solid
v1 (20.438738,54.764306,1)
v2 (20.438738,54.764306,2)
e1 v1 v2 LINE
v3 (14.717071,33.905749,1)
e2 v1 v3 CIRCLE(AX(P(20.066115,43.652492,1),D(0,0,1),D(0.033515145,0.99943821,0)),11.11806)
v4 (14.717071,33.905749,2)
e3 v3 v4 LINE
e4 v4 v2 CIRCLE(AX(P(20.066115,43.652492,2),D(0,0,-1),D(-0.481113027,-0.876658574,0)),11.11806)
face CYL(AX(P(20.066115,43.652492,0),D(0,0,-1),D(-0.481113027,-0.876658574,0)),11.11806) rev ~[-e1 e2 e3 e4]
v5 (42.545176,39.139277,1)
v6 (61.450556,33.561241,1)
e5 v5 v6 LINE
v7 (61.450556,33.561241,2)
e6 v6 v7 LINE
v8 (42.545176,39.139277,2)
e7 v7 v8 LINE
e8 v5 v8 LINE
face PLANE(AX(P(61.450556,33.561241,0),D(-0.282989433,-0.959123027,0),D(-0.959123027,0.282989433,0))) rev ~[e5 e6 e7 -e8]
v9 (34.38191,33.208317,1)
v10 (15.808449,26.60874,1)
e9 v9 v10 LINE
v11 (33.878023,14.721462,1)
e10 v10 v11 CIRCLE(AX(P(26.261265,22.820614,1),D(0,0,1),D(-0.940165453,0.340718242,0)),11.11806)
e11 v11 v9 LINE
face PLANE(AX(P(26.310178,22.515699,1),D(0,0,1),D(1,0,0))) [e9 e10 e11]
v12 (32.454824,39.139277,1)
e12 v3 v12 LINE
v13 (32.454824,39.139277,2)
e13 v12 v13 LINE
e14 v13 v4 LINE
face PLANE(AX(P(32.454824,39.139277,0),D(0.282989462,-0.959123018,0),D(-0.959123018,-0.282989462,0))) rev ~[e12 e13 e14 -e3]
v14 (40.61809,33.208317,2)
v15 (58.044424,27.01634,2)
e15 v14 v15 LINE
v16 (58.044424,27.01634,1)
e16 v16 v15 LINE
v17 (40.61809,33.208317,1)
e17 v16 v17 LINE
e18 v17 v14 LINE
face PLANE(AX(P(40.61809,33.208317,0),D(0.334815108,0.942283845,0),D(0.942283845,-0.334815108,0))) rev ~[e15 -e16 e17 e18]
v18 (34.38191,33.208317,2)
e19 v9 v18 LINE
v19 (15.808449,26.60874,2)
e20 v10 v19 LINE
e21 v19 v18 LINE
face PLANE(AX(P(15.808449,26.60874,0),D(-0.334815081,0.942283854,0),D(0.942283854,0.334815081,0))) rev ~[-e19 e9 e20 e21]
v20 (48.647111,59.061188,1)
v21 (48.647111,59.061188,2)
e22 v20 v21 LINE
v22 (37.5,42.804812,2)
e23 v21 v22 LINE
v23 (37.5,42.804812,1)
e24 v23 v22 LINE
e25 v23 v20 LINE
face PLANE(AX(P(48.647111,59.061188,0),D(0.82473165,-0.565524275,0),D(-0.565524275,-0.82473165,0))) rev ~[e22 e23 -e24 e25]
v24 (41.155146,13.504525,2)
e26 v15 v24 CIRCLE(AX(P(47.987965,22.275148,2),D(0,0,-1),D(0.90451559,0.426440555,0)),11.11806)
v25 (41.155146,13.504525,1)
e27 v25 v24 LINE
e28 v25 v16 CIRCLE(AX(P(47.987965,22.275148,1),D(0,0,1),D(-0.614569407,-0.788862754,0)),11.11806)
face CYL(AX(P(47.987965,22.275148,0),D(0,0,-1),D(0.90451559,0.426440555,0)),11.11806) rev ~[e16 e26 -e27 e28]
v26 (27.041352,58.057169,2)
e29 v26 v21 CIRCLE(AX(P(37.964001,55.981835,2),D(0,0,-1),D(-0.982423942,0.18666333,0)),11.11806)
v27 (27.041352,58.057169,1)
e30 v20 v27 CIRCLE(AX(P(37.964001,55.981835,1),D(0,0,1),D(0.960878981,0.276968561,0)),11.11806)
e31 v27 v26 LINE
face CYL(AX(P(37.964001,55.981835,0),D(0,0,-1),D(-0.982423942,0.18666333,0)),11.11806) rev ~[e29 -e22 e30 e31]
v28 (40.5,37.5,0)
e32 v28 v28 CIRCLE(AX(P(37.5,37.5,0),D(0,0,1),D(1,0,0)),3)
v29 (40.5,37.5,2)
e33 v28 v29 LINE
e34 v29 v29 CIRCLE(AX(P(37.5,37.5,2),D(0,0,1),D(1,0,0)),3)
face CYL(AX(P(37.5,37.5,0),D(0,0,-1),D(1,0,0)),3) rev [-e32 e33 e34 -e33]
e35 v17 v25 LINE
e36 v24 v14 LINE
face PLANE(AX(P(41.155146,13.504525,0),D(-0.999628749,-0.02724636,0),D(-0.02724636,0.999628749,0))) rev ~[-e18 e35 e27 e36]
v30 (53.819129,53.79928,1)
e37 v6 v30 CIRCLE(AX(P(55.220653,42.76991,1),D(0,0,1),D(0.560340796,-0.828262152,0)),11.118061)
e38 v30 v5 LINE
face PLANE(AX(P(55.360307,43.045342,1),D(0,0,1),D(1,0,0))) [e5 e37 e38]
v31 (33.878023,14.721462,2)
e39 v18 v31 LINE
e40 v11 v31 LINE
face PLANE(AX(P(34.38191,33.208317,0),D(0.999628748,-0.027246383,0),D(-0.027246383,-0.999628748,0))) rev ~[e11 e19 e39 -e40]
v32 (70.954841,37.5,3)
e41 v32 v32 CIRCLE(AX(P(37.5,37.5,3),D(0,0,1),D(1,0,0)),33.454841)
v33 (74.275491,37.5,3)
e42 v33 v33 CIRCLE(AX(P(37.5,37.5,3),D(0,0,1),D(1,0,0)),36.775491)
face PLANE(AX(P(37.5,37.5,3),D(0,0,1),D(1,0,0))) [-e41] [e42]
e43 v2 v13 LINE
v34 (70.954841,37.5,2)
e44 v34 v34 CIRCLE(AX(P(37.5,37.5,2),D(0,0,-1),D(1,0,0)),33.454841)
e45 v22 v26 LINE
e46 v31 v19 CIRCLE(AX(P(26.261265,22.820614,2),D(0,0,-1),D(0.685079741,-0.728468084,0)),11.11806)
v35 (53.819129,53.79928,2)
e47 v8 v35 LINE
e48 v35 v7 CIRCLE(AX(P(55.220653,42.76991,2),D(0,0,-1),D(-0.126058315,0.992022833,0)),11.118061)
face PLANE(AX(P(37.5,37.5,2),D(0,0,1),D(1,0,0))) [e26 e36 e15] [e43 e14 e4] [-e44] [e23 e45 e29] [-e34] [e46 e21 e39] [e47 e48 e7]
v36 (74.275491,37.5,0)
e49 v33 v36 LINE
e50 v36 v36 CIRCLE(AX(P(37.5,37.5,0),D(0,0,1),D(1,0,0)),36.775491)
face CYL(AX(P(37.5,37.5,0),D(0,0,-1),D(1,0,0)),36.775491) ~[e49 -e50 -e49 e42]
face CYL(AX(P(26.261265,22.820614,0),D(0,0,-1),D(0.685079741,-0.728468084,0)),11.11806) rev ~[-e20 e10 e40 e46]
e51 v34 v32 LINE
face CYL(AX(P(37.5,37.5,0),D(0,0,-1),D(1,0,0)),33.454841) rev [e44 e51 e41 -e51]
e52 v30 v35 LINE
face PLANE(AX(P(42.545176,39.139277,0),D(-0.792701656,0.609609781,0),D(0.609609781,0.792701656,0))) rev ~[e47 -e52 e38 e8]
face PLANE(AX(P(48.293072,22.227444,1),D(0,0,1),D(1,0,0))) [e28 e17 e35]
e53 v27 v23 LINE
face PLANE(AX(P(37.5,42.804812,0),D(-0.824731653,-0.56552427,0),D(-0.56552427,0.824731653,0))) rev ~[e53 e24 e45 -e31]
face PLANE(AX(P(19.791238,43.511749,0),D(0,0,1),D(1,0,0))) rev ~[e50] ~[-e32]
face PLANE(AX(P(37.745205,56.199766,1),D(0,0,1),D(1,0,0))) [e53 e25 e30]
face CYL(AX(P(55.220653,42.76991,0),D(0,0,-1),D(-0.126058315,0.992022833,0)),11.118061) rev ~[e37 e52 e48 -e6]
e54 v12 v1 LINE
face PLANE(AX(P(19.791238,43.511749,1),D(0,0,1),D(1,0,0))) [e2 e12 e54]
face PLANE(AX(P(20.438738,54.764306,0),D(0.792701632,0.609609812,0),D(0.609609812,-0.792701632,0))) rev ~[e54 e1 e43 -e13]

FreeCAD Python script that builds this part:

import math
import FreeCAD as App
import Part
import Sketcher

V = App.Vector
Q = App.Units.Quantity

doc = App.newDocument("Part")
body = doc.addObject("PartDesign::Body", "Body")

sketch1 = body.newObject("Sketcher::SketchObject", "Sketch")
sketch1.AttachmentSupport = (doc.getObject("XY_Plane"), [""])
sketch1.MapMode = "FlatFace"
sketch1.addGeometry([
    Part.Circle(V(37.5, 37.5, 0), V(0, 0, 1), 36.8),
    Part.LineSegment(V(34.4, 33.2, 0), V(33.9, 14.7, 0)),
    Part.ArcOfCircle(Part.Circle(V(26.3, 22.8, 0), V(0, 0, 1), 11.1), math.radians(160), math.radians(313)),
    Part.LineSegment(V(15.8, 26.6, 0), V(34.4, 33.2, 0)),
    Part.Circle(V(37.5, 37.5, 0), V(0, 0, 1), 3),
    Part.ArcOfCircle(Part.Circle(V(48, 22.3, 0), V(0, 0, 1), 11.1), math.radians(-128), math.radians(25)),
    Part.LineSegment(V(41.2, 13.5, 0), V(40.6, 33.2, 0)),
    Part.LineSegment(V(40.6, 33.2, 0), V(58, 27, 0)),
    Part.LineSegment(V(32.5, 39.1, 0), V(14.7, 33.9, 0)),
    Part.ArcOfCircle(Part.Circle(V(20.1, 43.7, 0), V(0, 0, 1), 11.1), math.radians(88), math.radians(241)),
    Part.LineSegment(V(20.4, 54.8, 0), V(32.5, 39.1, 0)),
    Part.ArcOfCircle(Part.Circle(V(55.2, 42.8, 0), V(0, 0, 1), 11.1), math.radians(-56), math.radians(97)),
    Part.LineSegment(V(61.5, 33.6, 0), V(42.5, 39.1, 0)),
    Part.LineSegment(V(42.5, 39.1, 0), V(53.8, 53.8, 0)),
    Part.LineSegment(V(48.6, 59.1, 0), V(37.5, 42.8, 0)),
    Part.LineSegment(V(37.5, 42.8, 0), V(27, 58.1, 0)),
    Part.ArcOfCircle(Part.Circle(V(38, 56, 0), V(0, 0, 1), 11.1), math.radians(16), math.radians(169)),
], False)
sketch1.addConstraint([
    Sketcher.Constraint("Coincident", 1, 2, 2, 2),
    Sketcher.Constraint("Coincident", 2, 1, 3, 1),
    Sketcher.Constraint("Coincident", 3, 2, 1, 1),
    Sketcher.Constraint("Coincident", 5, 1, 6, 1),
    Sketcher.Constraint("Coincident", 6, 2, 7, 1),
    Sketcher.Constraint("Coincident", 7, 2, 5, 2),
    Sketcher.Constraint("Coincident", 8, 2, 9, 2),
    Sketcher.Constraint("Coincident", 9, 1, 10, 1),
    Sketcher.Constraint("Coincident", 10, 2, 8, 1),
    Sketcher.Constraint("Coincident", 11, 1, 12, 1),
    Sketcher.Constraint("Coincident", 12, 2, 13, 1),
    Sketcher.Constraint("Coincident", 13, 2, 11, 2),
    Sketcher.Constraint("Coincident", 14, 2, 15, 1),
    Sketcher.Constraint("Coincident", 15, 2, 16, 2),
    Sketcher.Constraint("Coincident", 16, 1, 14, 1),
    Sketcher.Constraint("Coincident", 4, 3, 0, 3),
    Sketcher.Constraint("Equal", 2, 5),
    Sketcher.Constraint("Equal", 5, 9),
    Sketcher.Constraint("Equal", 9, 11),
    Sketcher.Constraint("Equal", 11, 16),
    Sketcher.Constraint("Horizontal", 3, 2, 6, 2),
    Sketcher.Constraint("Horizontal", 10, 2, 12, 2),
    Sketcher.Constraint("Vertical", 4, 3, 14, 2),
    Sketcher.Constraint("Equal", 3, 6),
    Sketcher.Constraint("Equal", 1, 7),
    Sketcher.Constraint("Equal", 7, 8),
    Sketcher.Constraint("Equal", 6, 10),
    Sketcher.Constraint("Equal", 10, 12),
    Sketcher.Constraint("Equal", 8, 13),
    Sketcher.Constraint("Equal", 12, 14),
    Sketcher.Constraint("Equal", 13, 15),
    Sketcher.Constraint("Diameter", 4, Q("6 mm")),
    Sketcher.Constraint("DistanceX", -1, 1, 0, 3, Q("37.5 mm")),
    Sketcher.Constraint("DistanceY", -1, 1, 0, 3, Q("37.5 mm")),
    Sketcher.Constraint("Radius", 2, Q("11.11806 mm")),
    Sketcher.Constraint("Diameter", 0, Q("73.550982 mm")),
    Sketcher.Constraint("DistanceX", -1, 1, 16, 3, Q("37.964001 mm")),
    Sketcher.Constraint("DistanceX", 2, 3, 5, 3, Q("21.7267 mm")),
    Sketcher.Constraint("DistanceY", 7, 2, 11, 1, Q("6.544901 mm")),
    Sketcher.Constraint("Distance", 1, Q("18.493721 mm")),
    Sketcher.Constraint("Distance", 3, Q("19.71111 mm")),
    Sketcher.Constraint("DistanceY", -1, 1, 5, 3, Q("22.275148 mm")),
    Sketcher.Constraint("DistanceY", -1, 1, 9, 3, Q("43.652492 mm")),
    Sketcher.Constraint("DistanceY", -1, 1, 11, 3, Q("42.76991 mm")),
    Sketcher.Constraint("DistanceX", -1, 1, 2, 1, Q("15.808449 mm")),
    Sketcher.Constraint("DistanceY", -1, 1, 2, 1, Q("26.60874 mm")),
    Sketcher.Constraint("DistanceX", -1, 1, 3, 2, Q("34.38191 mm")),
    Sketcher.Constraint("DistanceX", -1, 1, 6, 2, Q("40.61809 mm")),
    Sketcher.Constraint("DistanceY", -1, 1, 7, 2, Q("27.01634 mm")),
    Sketcher.Constraint("DistanceX", -1, 1, 8, 2, Q("14.717071 mm")),
    Sketcher.Constraint("DistanceY", -1, 1, 8, 2, Q("33.905749 mm")),
    Sketcher.Constraint("DistanceX", -1, 1, 13, 2, Q("53.819129 mm")),
    Sketcher.Constraint("DistanceY", -1, 1, 13, 2, Q("53.79928 mm")),
    Sketcher.Constraint("DistanceY", -1, 1, 14, 2, Q("42.804812 mm")),
    Sketcher.Constraint("DistanceX", -1, 1, 15, 2, Q("27.041352 mm")),
])
pad1 = body.newObject("PartDesign::Pad", "Pad")
pad1.Profile = sketch1
pad1.Length = 2

sketch2 = body.newObject("Sketcher::SketchObject", "Sketch001")
sketch2.AttachmentSupport = (doc.getObject("XY_Plane"), [""])
sketch2.MapMode = "FlatFace"
sketch2.addGeometry([
    Part.Circle(V(38, 38, 0), V(0, 0, 1), 37),
    Part.Circle(V(38, 38, 0), V(0, 0, 1), 33),
], False)
sketch2.addConstraint([
    Sketcher.Constraint("Coincident", 1, 3, 0, 3),
    Sketcher.Constraint("DistanceX", -1, 1, 0, 3, Q("37.5 mm")),
    Sketcher.Constraint("DistanceY", -1, 1, 0, 3, Q("37.5 mm")),
    Sketcher.Constraint("Diameter", 0, Q("73.550982 mm")),
    Sketcher.Constraint("Diameter", 1, Q("66.909682 mm")),
])
pad2 = body.newObject("PartDesign::Pad", "Pad001")
pad2.Profile = sketch2
pad2.Length = 3

sketch3 = body.newObject("Sketcher::SketchObject", "Sketch002")
sketch3.AttachmentSupport = (doc.getObject("XY_Plane"), [""])
sketch3.MapMode = "FlatFace"
sketch3.addGeometry([
    Part.LineSegment(V(32, 39, 0), V(20, 55, 0)),
    Part.ArcOfCircle(Part.Circle(V(20, 44, 0), V(0, 0, 1), 11), math.radians(88), math.radians(241)),
    Part.LineSegment(V(15, 34, 0), V(32, 39, 0)),
    Part.ArcOfCircle(Part.Circle(V(38, 56, 0), V(0, 0, 1), 11), math.radians(16), math.radians(169)),
    Part.LineSegment(V(27, 58, 0), V(38, 43, 0)),
    Part.LineSegment(V(38, 43, 0), V(49, 59, 0)),
    Part.LineSegment(V(54, 54, 0), V(43, 39, 0)),
    Part.LineSegment(V(43, 39, 0), V(61, 34, 0)),
    Part.ArcOfCircle(Part.Circle(V(55, 43, 0), V(0, 0, 1), 11), math.radians(-56), math.radians(97)),
    Part.LineSegment(V(58, 27, 0), V(41, 33, 0)),
    Part.LineSegment(V(41, 33, 0), V(41, 14, 0)),
    Part.ArcOfCircle(Part.Circle(V(48, 22, 0), V(0, 0, 1), 11), math.radians(-128), math.radians(25)),
    Part.LineSegment(V(34, 33, 0), V(16, 27, 0)),
    Part.ArcOfCircle(Part.Circle(V(26, 23, 0), V(0, 0, 1), 11), math.radians(160), math.radians(313)),
    Part.LineSegment(V(34, 15, 0), V(34, 33, 0)),
], False)
sketch3.addConstraint([
    Sketcher.Constraint("Coincident", 0, 2, 1, 1),
    Sketcher.Constraint("Coincident", 1, 2, 2, 1),
    Sketcher.Constraint("Coincident", 2, 2, 0, 1),
    Sketcher.Constraint("Coincident", 3, 2, 4, 1),
    Sketcher.Constraint("Coincident", 4, 2, 5, 1),
    Sketcher.Constraint("Coincident", 5, 2, 3, 1),
    Sketcher.Constraint("Coincident", 6, 2, 7, 1),
    Sketcher.Constraint("Coincident", 7, 2, 8, 1),
    Sketcher.Constraint("Coincident", 8, 2, 6, 1),
    Sketcher.Constraint("Coincident", 9, 2, 10, 1),
    Sketcher.Constraint("Coincident", 10, 2, 11, 1),
    Sketcher.Constraint("Coincident", 11, 2, 9, 1),
    Sketcher.Constraint("Coincident", 12, 2, 13, 1),
    Sketcher.Constraint("Coincident", 13, 2, 14, 1),
    Sketcher.Constraint("Coincident", 14, 2, 12, 1),
    Sketcher.Constraint("Equal", 1, 3),
    Sketcher.Constraint("Equal", 3, 8),
    Sketcher.Constraint("Equal", 8, 11),
    Sketcher.Constraint("Equal", 11, 13),
    Sketcher.Constraint("Horizontal", 2, 2, 6, 2),
    Sketcher.Constraint("Horizontal", 9, 2, 14, 2),
    Sketcher.Constraint("Equal", 2, 4),
    Sketcher.Constraint("Equal", 0, 5),
    Sketcher.Constraint("Equal", 4, 6),
    Sketcher.Constraint("Equal", 5, 7),
    Sketcher.Constraint("Equal", 6, 9),
    Sketcher.Constraint("Equal", 7, 10),
    Sketcher.Constraint("Equal", 10, 12),
    Sketcher.Constraint("Equal", 9, 14),
    Sketcher.Constraint("DistanceX", -1, 1, 4, 2, Q("37.5 mm")),
    Sketcher.Constraint("Radius", 1, Q("11.11806 mm")),
    Sketcher.Constraint("DistanceX", -1, 1, 3, 3, Q("37.964001 mm")),
    Sketcher.Constraint("DistanceX", 13, 3, 11, 3, Q("21.7267 mm")),
    Sketcher.Constraint("DistanceY", 11, 3, 1, 2, Q("11.630601 mm")),
    Sketcher.Constraint("DistanceY", 11, 2, 7, 2, Q("6.544901 mm")),
    Sketcher.Constraint("Distance", 0, Q("19.71111 mm")),
    Sketcher.Constraint("Distance", 2, Q("18.49372 mm")),
    Sketcher.Constraint("DistanceY", -1, 1, 1, 3, Q("43.652492 mm")),
    Sketcher.Constraint("DistanceY", -1, 1, 8, 3, Q("42.76991 mm")),
    Sketcher.Constraint("DistanceY", -1, 1, 11, 3, Q("22.275148 mm")),
    Sketcher.Constraint("DistanceX", -1, 1, 0, 2, Q("20.438738 mm")),
    Sketcher.Constraint("DistanceX", -1, 1, 1, 2, Q("14.717071 mm")),
    Sketcher.Constraint("DistanceY", -1, 1, 3, 2, Q("58.057169 mm")),
    Sketcher.Constraint("DistanceY", -1, 1, 4, 2, Q("42.804812 mm")),
    Sketcher.Constraint("DistanceY", -1, 1, 7, 2, Q("33.561241 mm")),
    Sketcher.Constraint("DistanceX", -1, 1, 8, 2, Q("53.819129 mm")),
    Sketcher.Constraint("DistanceX", -1, 1, 9, 2, Q("40.61809 mm")),
    Sketcher.Constraint("DistanceX", -1, 1, 12, 2, Q("15.808449 mm")),
    Sketcher.Constraint("DistanceY", -1, 1, 12, 2, Q("26.60874 mm")),
    Sketcher.Constraint("DistanceX", -1, 1, 14, 2, Q("34.38191 mm")),
])
pad3 = body.newObject("PartDesign::Pad", "Pad002")
pad3.Profile = sketch3
pad3.Length = 1

doc.recompute()
